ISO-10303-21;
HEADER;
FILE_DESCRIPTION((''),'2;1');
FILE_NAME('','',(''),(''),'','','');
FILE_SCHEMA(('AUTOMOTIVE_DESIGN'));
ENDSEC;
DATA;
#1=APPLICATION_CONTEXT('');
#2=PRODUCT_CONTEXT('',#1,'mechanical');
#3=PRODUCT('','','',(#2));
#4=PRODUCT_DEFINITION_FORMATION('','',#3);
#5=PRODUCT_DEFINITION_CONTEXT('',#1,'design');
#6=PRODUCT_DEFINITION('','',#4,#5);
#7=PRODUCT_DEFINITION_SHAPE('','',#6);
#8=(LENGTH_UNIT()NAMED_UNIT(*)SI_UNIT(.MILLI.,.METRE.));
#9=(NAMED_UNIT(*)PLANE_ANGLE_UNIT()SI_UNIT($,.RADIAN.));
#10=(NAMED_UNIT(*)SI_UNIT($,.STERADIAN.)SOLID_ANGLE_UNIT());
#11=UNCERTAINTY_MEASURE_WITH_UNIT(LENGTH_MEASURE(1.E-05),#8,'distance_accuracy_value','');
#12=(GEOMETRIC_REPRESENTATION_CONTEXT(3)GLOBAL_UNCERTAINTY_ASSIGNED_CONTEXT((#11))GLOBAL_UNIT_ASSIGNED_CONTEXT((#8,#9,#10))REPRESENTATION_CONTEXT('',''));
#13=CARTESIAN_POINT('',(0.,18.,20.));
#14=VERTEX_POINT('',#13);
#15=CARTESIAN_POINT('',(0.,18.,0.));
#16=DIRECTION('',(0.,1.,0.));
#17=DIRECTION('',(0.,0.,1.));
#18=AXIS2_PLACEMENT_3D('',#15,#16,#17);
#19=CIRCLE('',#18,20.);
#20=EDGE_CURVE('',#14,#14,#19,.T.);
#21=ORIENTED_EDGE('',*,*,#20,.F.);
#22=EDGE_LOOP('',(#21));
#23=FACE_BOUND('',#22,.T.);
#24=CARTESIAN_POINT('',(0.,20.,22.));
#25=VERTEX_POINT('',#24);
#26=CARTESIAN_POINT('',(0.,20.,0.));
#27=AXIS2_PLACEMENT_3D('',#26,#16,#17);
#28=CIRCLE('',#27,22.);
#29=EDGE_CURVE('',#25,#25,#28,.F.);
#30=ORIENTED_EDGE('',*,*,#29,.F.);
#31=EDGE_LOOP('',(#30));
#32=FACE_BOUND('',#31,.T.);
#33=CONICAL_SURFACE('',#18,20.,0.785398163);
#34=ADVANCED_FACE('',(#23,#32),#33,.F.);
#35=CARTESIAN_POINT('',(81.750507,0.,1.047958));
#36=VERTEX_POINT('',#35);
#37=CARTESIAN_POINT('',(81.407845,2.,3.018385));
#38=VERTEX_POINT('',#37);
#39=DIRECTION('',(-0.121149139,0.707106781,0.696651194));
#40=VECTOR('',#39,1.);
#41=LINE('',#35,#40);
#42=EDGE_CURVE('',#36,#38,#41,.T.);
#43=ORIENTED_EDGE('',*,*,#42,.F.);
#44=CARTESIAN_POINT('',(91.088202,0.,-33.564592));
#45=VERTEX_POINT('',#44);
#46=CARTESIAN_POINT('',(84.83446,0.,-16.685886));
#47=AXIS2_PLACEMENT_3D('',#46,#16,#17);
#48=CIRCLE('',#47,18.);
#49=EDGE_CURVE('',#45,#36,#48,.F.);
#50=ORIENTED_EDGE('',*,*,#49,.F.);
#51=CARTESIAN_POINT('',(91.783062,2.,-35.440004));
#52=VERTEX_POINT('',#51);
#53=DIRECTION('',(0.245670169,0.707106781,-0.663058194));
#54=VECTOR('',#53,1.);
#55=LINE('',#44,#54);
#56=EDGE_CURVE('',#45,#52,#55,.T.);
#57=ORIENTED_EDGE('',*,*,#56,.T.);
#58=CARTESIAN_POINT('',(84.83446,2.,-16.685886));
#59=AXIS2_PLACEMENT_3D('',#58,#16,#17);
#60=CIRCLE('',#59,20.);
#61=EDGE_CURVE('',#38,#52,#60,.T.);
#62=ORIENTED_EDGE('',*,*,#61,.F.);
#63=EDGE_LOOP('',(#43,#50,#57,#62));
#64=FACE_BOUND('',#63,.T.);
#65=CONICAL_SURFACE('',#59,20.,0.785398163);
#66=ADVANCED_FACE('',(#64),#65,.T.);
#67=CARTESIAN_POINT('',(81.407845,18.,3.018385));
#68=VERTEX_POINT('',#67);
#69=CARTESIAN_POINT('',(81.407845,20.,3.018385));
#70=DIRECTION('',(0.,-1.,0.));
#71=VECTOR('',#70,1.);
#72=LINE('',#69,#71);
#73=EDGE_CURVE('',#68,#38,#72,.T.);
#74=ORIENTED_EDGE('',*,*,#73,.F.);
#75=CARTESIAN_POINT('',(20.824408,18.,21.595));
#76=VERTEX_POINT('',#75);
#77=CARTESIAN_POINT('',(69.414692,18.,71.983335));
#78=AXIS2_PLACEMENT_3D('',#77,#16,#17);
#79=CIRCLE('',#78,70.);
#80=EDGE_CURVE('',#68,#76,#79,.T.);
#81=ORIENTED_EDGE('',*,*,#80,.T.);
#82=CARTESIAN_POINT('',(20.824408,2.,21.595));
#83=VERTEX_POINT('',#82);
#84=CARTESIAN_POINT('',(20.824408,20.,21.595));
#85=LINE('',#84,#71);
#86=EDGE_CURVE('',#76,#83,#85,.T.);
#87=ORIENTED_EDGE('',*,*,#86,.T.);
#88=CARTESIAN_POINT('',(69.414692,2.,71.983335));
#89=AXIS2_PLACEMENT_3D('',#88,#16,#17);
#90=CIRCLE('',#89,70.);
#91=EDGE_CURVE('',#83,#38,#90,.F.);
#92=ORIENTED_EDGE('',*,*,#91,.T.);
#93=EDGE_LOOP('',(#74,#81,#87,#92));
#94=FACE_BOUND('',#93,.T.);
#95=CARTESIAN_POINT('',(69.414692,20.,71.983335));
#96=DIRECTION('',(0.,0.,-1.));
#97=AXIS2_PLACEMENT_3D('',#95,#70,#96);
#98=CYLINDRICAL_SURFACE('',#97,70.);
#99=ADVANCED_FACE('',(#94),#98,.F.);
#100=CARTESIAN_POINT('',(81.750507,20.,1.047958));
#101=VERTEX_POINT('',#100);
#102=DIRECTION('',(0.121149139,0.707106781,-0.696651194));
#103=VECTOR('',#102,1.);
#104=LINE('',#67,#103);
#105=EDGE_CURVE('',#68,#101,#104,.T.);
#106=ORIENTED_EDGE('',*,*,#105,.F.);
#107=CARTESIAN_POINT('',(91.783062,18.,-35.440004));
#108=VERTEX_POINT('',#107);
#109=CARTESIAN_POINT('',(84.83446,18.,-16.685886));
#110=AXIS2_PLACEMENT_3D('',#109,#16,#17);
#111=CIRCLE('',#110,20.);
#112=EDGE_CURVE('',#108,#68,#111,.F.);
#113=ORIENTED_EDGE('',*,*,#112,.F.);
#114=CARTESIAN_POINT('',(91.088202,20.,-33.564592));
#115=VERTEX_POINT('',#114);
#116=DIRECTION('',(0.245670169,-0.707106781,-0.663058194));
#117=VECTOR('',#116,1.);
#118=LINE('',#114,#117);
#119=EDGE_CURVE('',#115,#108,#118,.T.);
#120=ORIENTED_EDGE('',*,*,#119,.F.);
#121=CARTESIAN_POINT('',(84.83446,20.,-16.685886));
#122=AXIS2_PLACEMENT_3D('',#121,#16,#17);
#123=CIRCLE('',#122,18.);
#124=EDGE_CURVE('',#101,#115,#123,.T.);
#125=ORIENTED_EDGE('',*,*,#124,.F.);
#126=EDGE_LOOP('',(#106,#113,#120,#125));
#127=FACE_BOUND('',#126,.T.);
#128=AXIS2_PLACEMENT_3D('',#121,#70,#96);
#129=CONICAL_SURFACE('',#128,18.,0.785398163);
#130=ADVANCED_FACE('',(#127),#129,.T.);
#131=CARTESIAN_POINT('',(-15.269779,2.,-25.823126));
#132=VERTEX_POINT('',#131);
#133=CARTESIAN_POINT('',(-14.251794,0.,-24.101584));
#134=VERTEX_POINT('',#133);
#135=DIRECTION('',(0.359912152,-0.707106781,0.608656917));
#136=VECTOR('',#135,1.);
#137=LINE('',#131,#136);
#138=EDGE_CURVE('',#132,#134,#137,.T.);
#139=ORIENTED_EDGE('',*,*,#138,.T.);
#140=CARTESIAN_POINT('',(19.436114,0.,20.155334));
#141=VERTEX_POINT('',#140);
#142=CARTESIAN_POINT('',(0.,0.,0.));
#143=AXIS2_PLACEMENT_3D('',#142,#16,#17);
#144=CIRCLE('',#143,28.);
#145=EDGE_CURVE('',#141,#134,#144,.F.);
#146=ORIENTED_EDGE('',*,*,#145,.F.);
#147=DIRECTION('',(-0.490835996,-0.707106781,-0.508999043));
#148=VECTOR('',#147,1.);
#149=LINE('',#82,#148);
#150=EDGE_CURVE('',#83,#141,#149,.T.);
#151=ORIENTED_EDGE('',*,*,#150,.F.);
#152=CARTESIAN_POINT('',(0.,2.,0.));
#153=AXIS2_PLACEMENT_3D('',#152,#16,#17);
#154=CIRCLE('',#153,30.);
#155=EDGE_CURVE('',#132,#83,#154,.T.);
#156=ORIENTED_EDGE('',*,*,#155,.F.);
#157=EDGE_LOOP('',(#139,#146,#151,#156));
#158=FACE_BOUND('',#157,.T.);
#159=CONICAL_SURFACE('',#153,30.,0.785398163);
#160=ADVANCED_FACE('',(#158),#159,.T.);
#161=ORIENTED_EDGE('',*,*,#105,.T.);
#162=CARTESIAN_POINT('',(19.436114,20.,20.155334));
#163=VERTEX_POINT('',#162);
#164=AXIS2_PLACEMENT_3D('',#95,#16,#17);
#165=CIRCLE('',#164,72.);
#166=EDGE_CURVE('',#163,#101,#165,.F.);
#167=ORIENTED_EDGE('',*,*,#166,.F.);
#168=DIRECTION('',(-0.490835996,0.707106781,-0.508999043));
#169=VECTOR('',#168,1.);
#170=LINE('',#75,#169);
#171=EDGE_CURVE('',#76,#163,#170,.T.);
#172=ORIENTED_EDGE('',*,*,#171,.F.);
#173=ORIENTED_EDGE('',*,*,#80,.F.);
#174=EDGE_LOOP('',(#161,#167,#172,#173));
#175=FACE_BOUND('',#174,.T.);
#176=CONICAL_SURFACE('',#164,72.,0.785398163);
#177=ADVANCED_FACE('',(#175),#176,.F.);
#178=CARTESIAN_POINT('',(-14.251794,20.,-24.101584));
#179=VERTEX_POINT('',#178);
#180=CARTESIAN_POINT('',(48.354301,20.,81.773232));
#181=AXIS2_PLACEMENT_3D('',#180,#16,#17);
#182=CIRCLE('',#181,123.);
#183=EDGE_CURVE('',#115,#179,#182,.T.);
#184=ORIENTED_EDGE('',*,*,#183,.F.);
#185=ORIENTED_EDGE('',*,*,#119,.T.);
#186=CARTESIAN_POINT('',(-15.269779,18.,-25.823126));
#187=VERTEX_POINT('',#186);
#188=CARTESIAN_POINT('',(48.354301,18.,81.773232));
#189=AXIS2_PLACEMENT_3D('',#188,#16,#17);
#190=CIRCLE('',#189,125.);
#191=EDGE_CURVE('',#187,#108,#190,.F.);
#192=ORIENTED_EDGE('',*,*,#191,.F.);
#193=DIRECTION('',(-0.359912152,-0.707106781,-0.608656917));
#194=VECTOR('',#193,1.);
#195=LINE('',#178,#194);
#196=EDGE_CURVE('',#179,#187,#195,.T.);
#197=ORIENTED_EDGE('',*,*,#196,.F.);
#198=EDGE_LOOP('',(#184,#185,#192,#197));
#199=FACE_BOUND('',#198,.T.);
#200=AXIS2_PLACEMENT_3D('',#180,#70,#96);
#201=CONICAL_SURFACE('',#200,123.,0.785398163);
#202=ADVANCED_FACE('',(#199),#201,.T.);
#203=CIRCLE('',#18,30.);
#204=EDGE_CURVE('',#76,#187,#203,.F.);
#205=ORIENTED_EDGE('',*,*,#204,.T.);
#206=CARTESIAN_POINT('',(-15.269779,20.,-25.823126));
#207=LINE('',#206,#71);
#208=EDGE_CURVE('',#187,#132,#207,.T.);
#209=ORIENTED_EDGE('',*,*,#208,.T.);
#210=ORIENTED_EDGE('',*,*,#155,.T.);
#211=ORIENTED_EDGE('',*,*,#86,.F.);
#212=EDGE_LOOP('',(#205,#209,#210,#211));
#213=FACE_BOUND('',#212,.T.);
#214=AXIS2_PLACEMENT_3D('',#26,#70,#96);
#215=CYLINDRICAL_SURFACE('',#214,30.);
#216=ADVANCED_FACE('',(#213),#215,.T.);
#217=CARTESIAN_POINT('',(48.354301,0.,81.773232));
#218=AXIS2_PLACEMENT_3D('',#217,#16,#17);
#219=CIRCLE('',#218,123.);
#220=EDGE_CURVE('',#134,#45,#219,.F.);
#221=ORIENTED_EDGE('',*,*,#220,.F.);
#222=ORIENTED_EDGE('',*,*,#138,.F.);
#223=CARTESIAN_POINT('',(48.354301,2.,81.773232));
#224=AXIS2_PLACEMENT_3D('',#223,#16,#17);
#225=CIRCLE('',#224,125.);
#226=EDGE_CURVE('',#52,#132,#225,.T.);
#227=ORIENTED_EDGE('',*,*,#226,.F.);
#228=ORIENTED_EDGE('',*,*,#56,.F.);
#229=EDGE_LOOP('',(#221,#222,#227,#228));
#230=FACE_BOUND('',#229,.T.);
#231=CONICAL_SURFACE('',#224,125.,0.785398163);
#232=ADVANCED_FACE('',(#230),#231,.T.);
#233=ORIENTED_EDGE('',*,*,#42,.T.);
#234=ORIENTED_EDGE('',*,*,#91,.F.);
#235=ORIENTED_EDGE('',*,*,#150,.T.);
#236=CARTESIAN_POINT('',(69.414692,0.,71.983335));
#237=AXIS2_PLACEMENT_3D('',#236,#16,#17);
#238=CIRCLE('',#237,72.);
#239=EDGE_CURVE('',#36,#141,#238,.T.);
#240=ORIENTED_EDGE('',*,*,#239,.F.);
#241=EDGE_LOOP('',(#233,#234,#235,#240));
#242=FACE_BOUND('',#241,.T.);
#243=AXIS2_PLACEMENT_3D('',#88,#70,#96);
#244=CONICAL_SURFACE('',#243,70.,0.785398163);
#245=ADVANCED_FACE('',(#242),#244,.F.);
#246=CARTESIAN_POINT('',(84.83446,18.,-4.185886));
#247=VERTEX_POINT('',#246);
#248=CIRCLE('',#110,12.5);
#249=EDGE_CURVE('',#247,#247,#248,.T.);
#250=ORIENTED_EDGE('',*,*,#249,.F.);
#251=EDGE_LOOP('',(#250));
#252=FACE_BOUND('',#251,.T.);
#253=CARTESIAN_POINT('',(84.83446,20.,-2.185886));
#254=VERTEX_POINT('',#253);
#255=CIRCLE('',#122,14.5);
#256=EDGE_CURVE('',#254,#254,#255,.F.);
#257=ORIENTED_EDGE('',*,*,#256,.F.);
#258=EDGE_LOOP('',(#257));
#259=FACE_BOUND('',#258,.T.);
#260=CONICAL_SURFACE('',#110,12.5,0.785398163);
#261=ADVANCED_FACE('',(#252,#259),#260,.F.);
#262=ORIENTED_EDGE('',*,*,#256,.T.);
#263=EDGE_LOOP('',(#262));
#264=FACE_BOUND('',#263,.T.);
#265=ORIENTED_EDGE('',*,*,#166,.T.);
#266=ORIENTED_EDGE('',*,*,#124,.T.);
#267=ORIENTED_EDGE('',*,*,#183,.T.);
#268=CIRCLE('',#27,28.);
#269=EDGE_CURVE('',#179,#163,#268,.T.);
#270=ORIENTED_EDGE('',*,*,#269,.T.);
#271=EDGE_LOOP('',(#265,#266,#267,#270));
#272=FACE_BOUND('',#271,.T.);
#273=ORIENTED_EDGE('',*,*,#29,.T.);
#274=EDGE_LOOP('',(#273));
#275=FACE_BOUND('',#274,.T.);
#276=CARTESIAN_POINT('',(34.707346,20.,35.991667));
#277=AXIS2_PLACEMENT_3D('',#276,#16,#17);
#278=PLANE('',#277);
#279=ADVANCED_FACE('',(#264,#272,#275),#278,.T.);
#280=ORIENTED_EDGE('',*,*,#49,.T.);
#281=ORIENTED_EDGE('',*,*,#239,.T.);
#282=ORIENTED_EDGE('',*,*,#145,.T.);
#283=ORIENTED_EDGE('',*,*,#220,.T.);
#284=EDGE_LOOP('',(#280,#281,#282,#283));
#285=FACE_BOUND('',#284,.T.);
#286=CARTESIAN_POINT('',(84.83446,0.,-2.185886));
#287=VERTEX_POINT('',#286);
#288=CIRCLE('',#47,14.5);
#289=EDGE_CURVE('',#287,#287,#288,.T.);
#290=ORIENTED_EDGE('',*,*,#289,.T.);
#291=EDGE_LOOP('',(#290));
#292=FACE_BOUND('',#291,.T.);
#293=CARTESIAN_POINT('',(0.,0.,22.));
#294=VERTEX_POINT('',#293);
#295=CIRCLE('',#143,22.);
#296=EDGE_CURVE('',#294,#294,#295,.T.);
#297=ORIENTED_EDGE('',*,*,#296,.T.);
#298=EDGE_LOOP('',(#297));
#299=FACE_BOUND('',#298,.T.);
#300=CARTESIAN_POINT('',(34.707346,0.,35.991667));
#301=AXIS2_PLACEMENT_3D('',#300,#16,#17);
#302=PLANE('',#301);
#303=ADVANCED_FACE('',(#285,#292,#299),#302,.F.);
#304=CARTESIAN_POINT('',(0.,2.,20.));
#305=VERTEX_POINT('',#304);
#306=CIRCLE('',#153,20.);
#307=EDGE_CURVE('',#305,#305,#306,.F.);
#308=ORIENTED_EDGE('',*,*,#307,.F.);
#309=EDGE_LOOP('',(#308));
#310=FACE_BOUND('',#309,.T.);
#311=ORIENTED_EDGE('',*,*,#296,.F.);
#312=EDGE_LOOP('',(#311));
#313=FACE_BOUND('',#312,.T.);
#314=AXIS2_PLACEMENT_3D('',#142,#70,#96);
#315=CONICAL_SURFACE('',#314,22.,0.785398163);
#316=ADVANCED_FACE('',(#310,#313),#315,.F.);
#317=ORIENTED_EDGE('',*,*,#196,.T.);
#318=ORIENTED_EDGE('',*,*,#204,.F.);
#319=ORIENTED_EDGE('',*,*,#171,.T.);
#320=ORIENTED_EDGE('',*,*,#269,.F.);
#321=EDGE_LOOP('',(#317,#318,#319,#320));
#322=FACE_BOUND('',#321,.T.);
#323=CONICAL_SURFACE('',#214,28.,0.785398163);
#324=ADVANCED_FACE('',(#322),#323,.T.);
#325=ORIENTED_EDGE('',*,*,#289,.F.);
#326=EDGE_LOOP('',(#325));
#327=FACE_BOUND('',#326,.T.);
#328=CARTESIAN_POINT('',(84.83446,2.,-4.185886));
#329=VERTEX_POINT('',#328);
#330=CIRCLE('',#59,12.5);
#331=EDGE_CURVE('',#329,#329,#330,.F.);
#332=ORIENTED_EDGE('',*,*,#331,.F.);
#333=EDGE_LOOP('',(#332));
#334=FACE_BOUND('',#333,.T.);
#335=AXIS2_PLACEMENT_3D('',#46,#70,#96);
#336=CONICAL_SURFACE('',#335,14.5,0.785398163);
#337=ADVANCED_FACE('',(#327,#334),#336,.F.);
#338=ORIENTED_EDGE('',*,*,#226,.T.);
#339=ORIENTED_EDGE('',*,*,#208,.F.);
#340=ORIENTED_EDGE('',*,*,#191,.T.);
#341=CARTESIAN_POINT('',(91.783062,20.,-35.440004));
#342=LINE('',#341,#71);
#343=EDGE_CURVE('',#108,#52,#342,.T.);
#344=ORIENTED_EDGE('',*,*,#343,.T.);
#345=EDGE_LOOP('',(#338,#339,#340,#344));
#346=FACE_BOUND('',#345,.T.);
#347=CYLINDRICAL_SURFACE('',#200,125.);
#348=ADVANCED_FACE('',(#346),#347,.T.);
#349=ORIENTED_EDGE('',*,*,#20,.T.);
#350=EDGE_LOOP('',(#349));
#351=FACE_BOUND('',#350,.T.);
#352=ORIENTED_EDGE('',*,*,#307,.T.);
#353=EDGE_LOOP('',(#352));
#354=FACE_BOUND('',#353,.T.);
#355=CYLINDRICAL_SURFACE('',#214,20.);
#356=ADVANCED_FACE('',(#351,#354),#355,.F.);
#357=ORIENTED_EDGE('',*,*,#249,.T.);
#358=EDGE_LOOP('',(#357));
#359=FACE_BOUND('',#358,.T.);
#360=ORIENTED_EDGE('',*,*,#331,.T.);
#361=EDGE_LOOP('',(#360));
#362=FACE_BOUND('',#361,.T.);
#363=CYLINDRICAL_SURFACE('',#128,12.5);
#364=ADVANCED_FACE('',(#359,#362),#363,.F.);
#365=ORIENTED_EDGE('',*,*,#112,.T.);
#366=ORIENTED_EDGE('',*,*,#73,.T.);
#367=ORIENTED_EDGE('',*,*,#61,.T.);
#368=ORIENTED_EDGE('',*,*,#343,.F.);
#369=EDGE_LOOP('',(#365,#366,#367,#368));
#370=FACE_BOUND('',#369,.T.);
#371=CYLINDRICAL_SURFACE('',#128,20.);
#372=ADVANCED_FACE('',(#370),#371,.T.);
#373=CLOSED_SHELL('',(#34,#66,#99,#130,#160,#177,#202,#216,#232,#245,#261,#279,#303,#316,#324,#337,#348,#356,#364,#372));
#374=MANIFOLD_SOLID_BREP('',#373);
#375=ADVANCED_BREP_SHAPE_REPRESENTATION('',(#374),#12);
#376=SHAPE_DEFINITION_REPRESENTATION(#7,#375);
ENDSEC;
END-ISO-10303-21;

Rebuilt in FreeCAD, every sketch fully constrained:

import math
import FreeCAD as App
import Part
import Sketcher

V = App.Vector


def edges_at(feature, points):
    """Names of the edges that pass closest to the given points."""
    edges = feature.Shape.Edges
    near = lambda p: min(range(len(edges)), key=lambda i: edges[i].distToShape(Part.Vertex(*p))[0])
    return sorted({f"Edge{near(p) + 1}" for p in points})

doc = App.newDocument("Part")
body = doc.addObject("PartDesign::Body", "Body")

sketch1 = doc.addObject("Sketcher::SketchObject", "Sketch")
body.addObject(sketch1)
sketch1.AttachmentSupport = (doc.XZ_Plane, [""])
sketch1.MapMode = "FlatFace"
sketch1.addGeometry([
    Part.ArcOfCircle(Part.Circle(V(0, 0, 0), V(0, 0, 1), 30), math.radians(46), math.radians(239)),
    Part.ArcOfCircle(Part.Circle(V(69, 72, 0), V(0, 0, 1), 70), math.radians(-134), math.radians(-80)),
    Part.ArcOfCircle(Part.Circle(V(85, -17, 0), V(0, 0, 1), 20), math.radians(-70), math.radians(100)),
    Part.ArcOfCircle(Part.Circle(V(48, 82, 0), V(0, 0, 1), 125), math.radians(-121), math.radians(-70)),
    Part.Circle(V(0, 0, 0), V(0, 0, 1), 20),
    Part.Circle(V(85, -17, 0), V(0, 0, 1), 12),
], False)
sketch1.addConstraint([
    Sketcher.Constraint("Tangent", 0, 1, 1, 1),
    Sketcher.Constraint("Tangent", 1, 2, 2, 2),
    Sketcher.Constraint("Tangent", 2, 1, 3, 2),
    Sketcher.Constraint("Tangent", 3, 1, 0, 2),
    Sketcher.Constraint("Coincident", 0, 3, -1, 1),
    Sketcher.Constraint("Coincident", 4, 3, -1, 1),
    Sketcher.Constraint("Coincident", 5, 3, 2, 3),
    Sketcher.Constraint("Equal", 2, 4),
    Sketcher.Constraint("Diameter", 4, 40.0),
    Sketcher.Constraint("Diameter", 5, 25.0),
    Sketcher.Constraint("Radius", 0, 30.0),
    Sketcher.Constraint("Radius", 1, 70.0),
    Sketcher.Constraint("Radius", 3, 125.0),
    Sketcher.Constraint("DistanceY", -1, 1, 0, 1, 21.595),
    Sketcher.Constraint("DistanceX", -1, 1, 3, 3, 48.354301),
])
pad1 = doc.addObject("PartDesign::Pad", "Pad")
body.addObject(pad1)
pad1.Profile = sketch1
pad1.Length = 20
pad1.Reversed = True
doc.recompute()

chamfer = doc.addObject("PartDesign::Chamfer", "Chamfer")
body.addObject(chamfer)
chamfer.Base = (pad1, edges_at(pad1, [
    (0, 0, -20),
    (0, 20, -20),
    (37.17, 20, -42.725),
    (84.834, 0, -29.186),
    (84.834, 20, -29.186),
    (-23.871, 20, 18.17),
    (48.894, 20, 5.059),
    (-23.871, 0, 18.17),
    (37.17, 0, -42.725),
    (104.144, 0, -11.477),
    (48.894, 0, 5.059),
    (104.144, 20, -11.477),
]))
chamfer.Size = 2

doc.recompute()
